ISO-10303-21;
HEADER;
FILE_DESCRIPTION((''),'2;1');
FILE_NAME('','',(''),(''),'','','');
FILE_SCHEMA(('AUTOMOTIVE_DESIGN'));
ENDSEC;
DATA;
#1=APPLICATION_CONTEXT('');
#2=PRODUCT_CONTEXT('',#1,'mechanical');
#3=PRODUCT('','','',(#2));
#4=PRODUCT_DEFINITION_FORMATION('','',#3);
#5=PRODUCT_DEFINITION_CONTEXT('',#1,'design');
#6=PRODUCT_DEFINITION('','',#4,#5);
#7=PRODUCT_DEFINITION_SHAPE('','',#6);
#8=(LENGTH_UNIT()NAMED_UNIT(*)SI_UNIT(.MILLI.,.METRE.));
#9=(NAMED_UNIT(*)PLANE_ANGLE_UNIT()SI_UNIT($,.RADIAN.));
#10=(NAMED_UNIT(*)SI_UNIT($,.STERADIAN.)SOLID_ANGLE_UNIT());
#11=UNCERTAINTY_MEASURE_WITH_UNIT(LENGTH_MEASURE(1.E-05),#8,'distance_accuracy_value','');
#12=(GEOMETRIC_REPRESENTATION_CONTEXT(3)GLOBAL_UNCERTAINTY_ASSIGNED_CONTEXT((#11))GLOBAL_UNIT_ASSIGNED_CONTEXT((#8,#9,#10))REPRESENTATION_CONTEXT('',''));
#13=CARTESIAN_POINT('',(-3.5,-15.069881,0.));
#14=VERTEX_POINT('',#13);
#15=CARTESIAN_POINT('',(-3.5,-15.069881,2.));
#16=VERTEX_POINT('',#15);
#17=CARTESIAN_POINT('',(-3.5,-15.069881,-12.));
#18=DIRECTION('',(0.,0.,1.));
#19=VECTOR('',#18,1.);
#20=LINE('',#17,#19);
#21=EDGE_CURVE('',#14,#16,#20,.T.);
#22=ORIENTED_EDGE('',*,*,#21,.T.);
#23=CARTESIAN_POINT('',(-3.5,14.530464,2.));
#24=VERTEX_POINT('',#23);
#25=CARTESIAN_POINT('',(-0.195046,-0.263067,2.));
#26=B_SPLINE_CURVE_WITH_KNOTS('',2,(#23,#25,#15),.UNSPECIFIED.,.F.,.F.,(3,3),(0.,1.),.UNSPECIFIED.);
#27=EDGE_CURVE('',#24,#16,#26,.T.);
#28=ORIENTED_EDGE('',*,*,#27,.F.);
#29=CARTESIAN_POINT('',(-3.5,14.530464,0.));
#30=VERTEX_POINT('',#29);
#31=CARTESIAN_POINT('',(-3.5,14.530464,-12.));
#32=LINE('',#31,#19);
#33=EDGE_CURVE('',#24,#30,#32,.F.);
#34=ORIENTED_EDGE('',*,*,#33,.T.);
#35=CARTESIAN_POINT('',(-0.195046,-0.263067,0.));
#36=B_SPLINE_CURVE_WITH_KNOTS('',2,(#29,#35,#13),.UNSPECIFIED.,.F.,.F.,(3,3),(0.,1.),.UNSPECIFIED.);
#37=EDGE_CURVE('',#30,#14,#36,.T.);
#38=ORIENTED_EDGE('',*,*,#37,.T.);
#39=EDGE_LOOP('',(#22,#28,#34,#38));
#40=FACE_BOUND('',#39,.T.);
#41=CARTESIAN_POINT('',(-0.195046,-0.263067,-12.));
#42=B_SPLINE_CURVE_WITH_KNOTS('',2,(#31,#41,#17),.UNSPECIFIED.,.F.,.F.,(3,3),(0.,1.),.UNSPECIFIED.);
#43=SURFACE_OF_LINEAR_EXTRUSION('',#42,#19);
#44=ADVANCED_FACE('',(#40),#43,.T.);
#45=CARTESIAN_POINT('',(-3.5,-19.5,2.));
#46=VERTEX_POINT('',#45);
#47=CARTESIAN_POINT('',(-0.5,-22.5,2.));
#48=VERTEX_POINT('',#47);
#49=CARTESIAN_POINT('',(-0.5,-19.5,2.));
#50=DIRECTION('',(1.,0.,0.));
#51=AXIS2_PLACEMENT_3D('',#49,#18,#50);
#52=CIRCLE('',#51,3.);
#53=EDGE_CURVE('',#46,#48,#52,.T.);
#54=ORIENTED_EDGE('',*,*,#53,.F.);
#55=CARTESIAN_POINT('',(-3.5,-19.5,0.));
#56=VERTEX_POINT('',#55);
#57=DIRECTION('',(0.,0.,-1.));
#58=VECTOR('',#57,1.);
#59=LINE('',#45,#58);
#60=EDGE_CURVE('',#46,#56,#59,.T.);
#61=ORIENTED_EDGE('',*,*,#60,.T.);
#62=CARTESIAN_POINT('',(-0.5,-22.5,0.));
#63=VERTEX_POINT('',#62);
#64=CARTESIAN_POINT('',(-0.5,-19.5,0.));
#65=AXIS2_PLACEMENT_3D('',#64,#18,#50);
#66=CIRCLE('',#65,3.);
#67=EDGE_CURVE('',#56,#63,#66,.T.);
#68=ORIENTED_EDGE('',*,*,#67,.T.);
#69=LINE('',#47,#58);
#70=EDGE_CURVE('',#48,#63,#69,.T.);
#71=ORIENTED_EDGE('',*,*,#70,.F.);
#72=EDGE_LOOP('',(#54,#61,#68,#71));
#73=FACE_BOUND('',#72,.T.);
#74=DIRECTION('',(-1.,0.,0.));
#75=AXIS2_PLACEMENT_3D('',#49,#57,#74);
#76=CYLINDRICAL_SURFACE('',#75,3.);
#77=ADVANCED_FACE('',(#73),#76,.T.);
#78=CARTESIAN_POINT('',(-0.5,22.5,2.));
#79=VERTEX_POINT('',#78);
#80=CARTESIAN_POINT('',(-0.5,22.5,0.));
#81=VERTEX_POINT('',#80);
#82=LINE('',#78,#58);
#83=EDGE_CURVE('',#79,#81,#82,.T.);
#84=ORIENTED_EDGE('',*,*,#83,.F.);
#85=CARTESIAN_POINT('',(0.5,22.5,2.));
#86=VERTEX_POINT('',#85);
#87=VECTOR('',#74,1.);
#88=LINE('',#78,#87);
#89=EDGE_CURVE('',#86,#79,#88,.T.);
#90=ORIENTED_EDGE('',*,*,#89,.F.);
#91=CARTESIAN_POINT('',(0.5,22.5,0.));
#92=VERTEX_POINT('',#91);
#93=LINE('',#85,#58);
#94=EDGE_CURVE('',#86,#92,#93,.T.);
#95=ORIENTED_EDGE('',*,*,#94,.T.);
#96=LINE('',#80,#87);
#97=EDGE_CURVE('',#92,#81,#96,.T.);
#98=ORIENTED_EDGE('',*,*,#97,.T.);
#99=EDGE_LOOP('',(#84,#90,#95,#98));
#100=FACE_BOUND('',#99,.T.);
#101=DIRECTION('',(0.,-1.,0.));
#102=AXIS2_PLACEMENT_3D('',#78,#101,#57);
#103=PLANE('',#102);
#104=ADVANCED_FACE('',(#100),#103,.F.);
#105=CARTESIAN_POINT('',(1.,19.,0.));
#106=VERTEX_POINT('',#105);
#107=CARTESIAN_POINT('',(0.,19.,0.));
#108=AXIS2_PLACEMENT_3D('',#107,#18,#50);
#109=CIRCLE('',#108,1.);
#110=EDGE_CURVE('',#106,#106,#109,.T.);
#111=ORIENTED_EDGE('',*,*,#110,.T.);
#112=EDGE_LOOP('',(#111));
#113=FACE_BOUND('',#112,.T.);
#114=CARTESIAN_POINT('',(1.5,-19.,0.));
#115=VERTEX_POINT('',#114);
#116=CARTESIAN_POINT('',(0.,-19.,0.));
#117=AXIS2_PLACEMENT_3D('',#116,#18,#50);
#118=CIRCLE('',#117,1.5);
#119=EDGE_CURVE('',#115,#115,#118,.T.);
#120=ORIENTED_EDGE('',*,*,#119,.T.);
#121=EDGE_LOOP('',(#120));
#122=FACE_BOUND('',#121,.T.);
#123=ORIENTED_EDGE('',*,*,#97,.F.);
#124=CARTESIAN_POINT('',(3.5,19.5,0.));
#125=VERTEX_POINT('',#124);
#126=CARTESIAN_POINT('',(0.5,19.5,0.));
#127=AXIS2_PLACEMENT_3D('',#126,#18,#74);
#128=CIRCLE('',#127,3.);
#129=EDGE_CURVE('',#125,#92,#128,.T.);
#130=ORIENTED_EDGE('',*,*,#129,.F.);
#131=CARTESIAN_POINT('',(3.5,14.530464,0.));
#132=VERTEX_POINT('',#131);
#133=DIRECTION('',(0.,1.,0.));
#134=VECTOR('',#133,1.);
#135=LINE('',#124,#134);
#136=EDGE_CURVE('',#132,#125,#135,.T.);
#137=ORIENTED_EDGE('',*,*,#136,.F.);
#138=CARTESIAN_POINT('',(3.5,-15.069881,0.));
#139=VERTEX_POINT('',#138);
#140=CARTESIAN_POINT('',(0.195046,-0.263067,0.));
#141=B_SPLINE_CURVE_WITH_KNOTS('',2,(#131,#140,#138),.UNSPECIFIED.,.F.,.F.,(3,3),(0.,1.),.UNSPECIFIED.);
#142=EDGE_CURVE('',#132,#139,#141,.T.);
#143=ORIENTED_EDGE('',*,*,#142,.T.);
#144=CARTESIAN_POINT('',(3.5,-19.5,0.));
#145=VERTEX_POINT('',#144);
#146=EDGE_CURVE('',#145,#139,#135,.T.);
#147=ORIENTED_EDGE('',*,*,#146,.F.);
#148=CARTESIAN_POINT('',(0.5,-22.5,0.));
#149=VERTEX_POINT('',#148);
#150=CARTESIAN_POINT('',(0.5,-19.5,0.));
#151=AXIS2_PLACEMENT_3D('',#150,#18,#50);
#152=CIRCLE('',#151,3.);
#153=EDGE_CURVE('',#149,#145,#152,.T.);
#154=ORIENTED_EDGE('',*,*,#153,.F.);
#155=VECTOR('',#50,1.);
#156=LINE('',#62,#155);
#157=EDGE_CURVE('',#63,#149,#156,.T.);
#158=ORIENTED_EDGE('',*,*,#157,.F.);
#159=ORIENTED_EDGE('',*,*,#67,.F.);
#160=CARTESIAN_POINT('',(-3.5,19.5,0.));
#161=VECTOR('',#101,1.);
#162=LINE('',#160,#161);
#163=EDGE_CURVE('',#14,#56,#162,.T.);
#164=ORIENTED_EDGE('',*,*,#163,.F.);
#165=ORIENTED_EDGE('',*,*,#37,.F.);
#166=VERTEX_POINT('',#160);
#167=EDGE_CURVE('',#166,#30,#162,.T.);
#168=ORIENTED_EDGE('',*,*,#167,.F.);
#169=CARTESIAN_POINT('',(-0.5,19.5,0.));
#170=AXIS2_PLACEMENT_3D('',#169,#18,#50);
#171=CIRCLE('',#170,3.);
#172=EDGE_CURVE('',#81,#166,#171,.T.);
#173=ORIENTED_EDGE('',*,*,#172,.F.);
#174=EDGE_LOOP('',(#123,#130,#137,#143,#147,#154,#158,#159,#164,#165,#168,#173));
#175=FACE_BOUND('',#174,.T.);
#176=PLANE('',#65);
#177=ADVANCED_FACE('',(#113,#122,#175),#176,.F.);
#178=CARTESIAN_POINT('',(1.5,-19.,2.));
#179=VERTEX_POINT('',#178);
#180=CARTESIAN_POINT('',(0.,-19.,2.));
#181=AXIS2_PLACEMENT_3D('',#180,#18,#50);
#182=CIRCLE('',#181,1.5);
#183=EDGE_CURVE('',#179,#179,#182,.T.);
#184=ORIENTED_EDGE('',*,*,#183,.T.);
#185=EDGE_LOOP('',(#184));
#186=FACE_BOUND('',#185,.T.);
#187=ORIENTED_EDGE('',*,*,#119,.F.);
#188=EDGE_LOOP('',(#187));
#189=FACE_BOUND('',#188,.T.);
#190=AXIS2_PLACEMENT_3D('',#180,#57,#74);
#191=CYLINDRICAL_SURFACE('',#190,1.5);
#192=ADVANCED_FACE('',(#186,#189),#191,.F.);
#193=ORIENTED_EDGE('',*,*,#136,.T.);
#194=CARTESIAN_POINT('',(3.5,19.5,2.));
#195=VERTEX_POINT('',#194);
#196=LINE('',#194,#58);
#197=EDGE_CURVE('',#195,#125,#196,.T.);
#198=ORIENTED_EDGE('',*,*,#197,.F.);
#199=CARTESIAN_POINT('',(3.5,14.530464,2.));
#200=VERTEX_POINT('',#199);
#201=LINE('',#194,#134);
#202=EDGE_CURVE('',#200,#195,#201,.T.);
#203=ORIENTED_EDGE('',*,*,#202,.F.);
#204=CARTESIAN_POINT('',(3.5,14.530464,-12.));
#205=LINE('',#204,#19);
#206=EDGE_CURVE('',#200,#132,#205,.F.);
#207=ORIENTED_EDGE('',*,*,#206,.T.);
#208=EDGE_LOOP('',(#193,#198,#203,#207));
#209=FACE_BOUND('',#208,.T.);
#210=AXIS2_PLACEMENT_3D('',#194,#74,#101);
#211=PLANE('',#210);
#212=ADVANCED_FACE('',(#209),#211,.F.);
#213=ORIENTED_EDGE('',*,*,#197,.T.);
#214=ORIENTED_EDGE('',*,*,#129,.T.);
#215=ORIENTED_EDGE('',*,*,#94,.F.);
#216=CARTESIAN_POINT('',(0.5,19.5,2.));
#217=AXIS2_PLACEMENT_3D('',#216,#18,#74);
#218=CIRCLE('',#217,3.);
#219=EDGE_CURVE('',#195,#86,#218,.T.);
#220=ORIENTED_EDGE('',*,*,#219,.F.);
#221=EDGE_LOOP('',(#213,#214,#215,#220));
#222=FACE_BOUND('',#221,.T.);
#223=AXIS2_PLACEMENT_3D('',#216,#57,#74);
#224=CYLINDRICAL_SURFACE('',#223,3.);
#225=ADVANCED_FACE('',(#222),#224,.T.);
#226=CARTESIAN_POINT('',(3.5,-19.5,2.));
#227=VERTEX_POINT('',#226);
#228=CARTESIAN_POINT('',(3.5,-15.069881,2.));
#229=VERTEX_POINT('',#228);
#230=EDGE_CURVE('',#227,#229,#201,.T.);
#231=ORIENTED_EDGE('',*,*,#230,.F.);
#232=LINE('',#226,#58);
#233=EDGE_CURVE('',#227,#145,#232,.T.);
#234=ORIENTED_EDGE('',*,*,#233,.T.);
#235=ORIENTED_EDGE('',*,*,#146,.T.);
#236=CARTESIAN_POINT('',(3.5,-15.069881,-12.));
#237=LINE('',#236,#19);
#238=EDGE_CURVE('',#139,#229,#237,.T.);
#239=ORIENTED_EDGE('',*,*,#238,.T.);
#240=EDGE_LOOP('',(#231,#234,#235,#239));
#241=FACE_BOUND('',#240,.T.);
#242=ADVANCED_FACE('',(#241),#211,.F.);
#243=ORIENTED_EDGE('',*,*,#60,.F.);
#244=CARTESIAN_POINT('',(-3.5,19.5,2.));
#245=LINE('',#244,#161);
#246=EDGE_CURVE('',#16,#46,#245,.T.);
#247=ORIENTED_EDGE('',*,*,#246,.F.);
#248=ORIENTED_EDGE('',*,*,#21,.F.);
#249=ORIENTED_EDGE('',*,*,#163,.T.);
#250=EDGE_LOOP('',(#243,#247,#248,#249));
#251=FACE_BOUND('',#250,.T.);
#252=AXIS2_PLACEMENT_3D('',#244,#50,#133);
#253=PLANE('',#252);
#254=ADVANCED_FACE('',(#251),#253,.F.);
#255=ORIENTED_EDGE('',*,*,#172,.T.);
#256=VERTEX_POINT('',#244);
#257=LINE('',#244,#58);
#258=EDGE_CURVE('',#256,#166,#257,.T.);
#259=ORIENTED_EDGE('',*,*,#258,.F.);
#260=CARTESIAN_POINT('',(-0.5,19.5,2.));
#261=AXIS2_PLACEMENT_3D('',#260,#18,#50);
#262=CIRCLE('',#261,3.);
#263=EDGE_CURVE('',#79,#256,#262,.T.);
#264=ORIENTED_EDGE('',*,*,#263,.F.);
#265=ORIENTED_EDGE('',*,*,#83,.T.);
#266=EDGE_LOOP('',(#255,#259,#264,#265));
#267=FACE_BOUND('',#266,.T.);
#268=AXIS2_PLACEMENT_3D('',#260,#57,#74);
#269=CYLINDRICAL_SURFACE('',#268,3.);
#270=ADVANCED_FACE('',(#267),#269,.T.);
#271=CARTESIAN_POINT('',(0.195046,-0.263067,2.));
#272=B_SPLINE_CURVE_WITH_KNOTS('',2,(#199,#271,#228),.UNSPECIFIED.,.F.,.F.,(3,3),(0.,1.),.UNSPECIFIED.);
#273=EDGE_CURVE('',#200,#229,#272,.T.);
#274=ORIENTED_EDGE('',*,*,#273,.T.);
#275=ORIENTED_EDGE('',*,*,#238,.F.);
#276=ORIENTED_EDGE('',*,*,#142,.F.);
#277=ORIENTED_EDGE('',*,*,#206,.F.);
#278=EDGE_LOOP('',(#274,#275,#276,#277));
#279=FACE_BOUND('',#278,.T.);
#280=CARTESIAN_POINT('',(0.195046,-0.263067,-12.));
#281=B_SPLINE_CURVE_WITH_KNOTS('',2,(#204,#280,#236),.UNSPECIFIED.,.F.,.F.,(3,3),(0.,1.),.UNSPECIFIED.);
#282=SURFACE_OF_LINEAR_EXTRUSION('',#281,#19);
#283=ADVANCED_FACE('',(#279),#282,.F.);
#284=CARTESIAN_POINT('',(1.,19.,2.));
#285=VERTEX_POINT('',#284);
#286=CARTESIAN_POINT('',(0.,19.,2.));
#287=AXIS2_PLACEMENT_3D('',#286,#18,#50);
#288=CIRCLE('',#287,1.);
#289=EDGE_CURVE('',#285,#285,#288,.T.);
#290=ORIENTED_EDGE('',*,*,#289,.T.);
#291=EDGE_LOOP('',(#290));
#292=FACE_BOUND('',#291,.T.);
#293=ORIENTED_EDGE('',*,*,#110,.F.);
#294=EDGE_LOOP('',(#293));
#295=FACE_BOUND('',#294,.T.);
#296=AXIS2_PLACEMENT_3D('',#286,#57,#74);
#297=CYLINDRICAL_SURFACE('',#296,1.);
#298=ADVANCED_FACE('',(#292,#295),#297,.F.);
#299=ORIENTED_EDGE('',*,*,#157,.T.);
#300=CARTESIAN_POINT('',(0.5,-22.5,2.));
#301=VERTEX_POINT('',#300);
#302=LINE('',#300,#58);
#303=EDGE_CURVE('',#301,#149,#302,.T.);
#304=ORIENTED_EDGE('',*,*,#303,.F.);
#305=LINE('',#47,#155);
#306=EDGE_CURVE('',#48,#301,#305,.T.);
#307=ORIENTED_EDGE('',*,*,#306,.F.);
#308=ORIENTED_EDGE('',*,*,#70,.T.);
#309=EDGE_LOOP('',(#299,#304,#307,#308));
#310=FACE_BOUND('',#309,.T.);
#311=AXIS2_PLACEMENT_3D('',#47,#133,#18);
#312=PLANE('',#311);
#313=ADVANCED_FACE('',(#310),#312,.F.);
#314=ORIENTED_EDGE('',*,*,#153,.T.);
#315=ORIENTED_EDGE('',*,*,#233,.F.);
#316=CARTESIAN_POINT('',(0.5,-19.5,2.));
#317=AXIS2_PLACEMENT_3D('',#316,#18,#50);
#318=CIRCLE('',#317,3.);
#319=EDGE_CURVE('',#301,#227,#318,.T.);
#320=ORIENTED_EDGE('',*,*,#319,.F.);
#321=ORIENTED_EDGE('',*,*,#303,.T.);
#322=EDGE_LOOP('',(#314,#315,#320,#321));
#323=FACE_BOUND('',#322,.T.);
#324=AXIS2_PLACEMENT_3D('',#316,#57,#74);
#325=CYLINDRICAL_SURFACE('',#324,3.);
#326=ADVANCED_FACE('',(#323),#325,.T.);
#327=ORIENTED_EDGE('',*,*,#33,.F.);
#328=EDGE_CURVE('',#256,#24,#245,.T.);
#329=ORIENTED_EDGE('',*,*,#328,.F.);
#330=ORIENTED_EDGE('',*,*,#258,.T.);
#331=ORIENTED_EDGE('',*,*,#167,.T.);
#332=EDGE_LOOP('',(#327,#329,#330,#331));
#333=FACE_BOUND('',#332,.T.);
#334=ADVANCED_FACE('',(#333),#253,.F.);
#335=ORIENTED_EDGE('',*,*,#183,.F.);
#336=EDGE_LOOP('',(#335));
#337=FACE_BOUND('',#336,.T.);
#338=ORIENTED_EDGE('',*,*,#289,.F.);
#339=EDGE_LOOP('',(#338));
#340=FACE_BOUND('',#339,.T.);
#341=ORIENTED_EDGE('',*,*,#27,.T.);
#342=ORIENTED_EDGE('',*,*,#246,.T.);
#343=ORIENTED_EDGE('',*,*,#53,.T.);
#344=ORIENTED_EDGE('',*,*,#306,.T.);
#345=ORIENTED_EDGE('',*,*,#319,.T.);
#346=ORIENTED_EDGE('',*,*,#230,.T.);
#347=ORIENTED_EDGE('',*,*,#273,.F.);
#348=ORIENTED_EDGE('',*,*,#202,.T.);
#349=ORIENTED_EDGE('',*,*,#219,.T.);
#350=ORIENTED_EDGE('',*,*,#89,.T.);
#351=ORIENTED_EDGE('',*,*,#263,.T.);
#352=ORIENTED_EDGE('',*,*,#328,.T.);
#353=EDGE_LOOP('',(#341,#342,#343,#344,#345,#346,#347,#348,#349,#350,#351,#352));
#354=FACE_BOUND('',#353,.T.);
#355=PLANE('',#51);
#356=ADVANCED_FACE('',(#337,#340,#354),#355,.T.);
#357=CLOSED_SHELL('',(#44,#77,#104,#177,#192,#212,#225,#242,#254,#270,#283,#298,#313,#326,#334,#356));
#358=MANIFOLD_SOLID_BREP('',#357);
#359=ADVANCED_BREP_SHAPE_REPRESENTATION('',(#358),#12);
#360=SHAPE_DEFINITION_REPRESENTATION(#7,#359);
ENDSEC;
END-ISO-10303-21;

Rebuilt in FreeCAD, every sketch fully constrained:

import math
import FreeCAD as App
import Part
import Sketcher

doc = App.newDocument("Part")
body = doc.addObject("PartDesign::Body", "Body")

# Sketch on XY plane
sketch1 = body.newObject("Sketcher::SketchObject", "Sketch")
sketch1.AttachmentSupport = (doc.getObject("XY_Plane"), [""])
sketch1.MapMode = "FlatFace"
sketch1.addGeometry([
    Part.LineSegment(App.Vector(0.5, 22.5, 0), App.Vector(-0.5, 22.5, 0)),  # 0
    Part.ArcOfCircle(Part.Circle(App.Vector(-0.5, 19.5, 0), App.Vector(0, 0, 1), 3), math.radians(90), math.radians(180)),  # 1
    Part.LineSegment(App.Vector(-3.5, 19.5, 0), App.Vector(-3.5, -19.5, 0)),  # 2
    Part.ArcOfCircle(Part.Circle(App.Vector(-0.5, -19.5, 0), App.Vector(0, 0, 1), 3), math.radians(180), math.radians(270)),  # 3
    Part.LineSegment(App.Vector(-0.5, -22.5, 0), App.Vector(0.5, -22.5, 0)),  # 4
    Part.ArcOfCircle(Part.Circle(App.Vector(0.5, -19.5, 0), App.Vector(0, 0, 1), 3), math.radians(-90), math.radians(0)),  # 5
    Part.LineSegment(App.Vector(3.5, -19.5, 0), App.Vector(3.5, 19.5, 0)),  # 6
    Part.ArcOfCircle(Part.Circle(App.Vector(0.5, 19.5, 0), App.Vector(0, 0, 1), 3), math.radians(0), math.radians(90)),  # 7
    Part.Circle(App.Vector(0, -19, 0), App.Vector(0, 0, 1), 1.5),  # 8
    Part.Circle(App.Vector(0, 19, 0), App.Vector(0, 0, 1), 1),  # 9
], False)
sketch1.addConstraint([
    Sketcher.Constraint("Tangent", 0, 2, 1, 1),
    Sketcher.Constraint("Tangent", 1, 2, 2, 1),
    Sketcher.Constraint("Tangent", 2, 2, 3, 1),
    Sketcher.Constraint("Tangent", 3, 2, 4, 1),
    Sketcher.Constraint("Tangent", 4, 2, 5, 1),
    Sketcher.Constraint("Tangent", 5, 2, 6, 1),
    Sketcher.Constraint("Tangent", 6, 2, 7, 1),
    Sketcher.Constraint("Tangent", 7, 2, 0, 1),
    Sketcher.Constraint("Horizontal", 0),
    Sketcher.Constraint("Vertical", 2),
    Sketcher.Constraint("Horizontal", 4),
    Sketcher.Constraint("Vertical", 6),
    Sketcher.Constraint("Equal", 1, 3),
    Sketcher.Constraint("Equal", 3, 5),
    Sketcher.Constraint("Equal", 5, 7),
    Sketcher.Constraint("Symmetric", 1, 3, 5, 3, -1, 1),
    Sketcher.Constraint("Symmetric", 8, 3, 9, 3, -1, 1),
    Sketcher.Constraint("PointOnObject", 8, 3, -2),
    Sketcher.Constraint("Diameter", 8, 3.0),
    Sketcher.Constraint("Diameter", 9, 2.0),
    Sketcher.Constraint("Radius", 1, 3.0),
    Sketcher.Constraint("DistanceX", 0, 2, 0, 1, 1.0),
    Sketcher.Constraint("DistanceY", 2, 2, 2, 1, 39.0),
    Sketcher.Constraint("DistanceY", 8, 3, -1, 1, 19.0),
])
pad1 = body.newObject("PartDesign::Pad", "Pad")
pad1.Profile = sketch1
pad1.Length = 2

# Sketch on XY plane
sketch2 = body.newObject("Sketcher::SketchObject", "Sketch001")
sketch2.AttachmentSupport = (doc.getObject("XY_Plane"), [""])
sketch2.MapMode = "FlatFace"
sketch2.AttachmentOffset = App.Placement(App.Vector(0, 0, 2), App.Rotation())
sketch2.addGeometry([
    Part.LineSegment(App.Vector(-3.5, 14.530464, 0), App.Vector(-3.5, -15.069881, 0)),
    Part.BSplineCurve([App.Vector(-3.5, 14.530464, 0), App.Vector(-0.195046, -0.263067, 0), App.Vector(-3.5, -15.069881, 0)], [3, 3], [0, 1], False, 2, [1, 1, 1], False),
    Part.BSplineCurve([App.Vector(3.5, 14.530464, 0), App.Vector(0.195046, -0.263067, 0), App.Vector(3.5, -15.069881, 0)], [3, 3], [0, 1], False, 2, [1, 1, 1], False),
    Part.LineSegment(App.Vector(3.5, -15.069881, 0), App.Vector(3.5, 14.530464, 0)),
], False)
sketch2.addConstraint([
    Sketcher.Constraint("Block", 1),
    Sketcher.Constraint("Block", 2),
    Sketcher.Constraint("Coincident", 0, 1, 1, 1),
    Sketcher.Constraint("Coincident", 1, 2, 0, 2),
    Sketcher.Constraint("Coincident", 2, 1, 3, 2),
    Sketcher.Constraint("Coincident", 3, 1, 2, 2),
])
pocket1 = body.newObject("PartDesign::Pocket", "Pocket")
pocket1.Profile = sketch2
pocket1.Length = 14

doc.recompute()
